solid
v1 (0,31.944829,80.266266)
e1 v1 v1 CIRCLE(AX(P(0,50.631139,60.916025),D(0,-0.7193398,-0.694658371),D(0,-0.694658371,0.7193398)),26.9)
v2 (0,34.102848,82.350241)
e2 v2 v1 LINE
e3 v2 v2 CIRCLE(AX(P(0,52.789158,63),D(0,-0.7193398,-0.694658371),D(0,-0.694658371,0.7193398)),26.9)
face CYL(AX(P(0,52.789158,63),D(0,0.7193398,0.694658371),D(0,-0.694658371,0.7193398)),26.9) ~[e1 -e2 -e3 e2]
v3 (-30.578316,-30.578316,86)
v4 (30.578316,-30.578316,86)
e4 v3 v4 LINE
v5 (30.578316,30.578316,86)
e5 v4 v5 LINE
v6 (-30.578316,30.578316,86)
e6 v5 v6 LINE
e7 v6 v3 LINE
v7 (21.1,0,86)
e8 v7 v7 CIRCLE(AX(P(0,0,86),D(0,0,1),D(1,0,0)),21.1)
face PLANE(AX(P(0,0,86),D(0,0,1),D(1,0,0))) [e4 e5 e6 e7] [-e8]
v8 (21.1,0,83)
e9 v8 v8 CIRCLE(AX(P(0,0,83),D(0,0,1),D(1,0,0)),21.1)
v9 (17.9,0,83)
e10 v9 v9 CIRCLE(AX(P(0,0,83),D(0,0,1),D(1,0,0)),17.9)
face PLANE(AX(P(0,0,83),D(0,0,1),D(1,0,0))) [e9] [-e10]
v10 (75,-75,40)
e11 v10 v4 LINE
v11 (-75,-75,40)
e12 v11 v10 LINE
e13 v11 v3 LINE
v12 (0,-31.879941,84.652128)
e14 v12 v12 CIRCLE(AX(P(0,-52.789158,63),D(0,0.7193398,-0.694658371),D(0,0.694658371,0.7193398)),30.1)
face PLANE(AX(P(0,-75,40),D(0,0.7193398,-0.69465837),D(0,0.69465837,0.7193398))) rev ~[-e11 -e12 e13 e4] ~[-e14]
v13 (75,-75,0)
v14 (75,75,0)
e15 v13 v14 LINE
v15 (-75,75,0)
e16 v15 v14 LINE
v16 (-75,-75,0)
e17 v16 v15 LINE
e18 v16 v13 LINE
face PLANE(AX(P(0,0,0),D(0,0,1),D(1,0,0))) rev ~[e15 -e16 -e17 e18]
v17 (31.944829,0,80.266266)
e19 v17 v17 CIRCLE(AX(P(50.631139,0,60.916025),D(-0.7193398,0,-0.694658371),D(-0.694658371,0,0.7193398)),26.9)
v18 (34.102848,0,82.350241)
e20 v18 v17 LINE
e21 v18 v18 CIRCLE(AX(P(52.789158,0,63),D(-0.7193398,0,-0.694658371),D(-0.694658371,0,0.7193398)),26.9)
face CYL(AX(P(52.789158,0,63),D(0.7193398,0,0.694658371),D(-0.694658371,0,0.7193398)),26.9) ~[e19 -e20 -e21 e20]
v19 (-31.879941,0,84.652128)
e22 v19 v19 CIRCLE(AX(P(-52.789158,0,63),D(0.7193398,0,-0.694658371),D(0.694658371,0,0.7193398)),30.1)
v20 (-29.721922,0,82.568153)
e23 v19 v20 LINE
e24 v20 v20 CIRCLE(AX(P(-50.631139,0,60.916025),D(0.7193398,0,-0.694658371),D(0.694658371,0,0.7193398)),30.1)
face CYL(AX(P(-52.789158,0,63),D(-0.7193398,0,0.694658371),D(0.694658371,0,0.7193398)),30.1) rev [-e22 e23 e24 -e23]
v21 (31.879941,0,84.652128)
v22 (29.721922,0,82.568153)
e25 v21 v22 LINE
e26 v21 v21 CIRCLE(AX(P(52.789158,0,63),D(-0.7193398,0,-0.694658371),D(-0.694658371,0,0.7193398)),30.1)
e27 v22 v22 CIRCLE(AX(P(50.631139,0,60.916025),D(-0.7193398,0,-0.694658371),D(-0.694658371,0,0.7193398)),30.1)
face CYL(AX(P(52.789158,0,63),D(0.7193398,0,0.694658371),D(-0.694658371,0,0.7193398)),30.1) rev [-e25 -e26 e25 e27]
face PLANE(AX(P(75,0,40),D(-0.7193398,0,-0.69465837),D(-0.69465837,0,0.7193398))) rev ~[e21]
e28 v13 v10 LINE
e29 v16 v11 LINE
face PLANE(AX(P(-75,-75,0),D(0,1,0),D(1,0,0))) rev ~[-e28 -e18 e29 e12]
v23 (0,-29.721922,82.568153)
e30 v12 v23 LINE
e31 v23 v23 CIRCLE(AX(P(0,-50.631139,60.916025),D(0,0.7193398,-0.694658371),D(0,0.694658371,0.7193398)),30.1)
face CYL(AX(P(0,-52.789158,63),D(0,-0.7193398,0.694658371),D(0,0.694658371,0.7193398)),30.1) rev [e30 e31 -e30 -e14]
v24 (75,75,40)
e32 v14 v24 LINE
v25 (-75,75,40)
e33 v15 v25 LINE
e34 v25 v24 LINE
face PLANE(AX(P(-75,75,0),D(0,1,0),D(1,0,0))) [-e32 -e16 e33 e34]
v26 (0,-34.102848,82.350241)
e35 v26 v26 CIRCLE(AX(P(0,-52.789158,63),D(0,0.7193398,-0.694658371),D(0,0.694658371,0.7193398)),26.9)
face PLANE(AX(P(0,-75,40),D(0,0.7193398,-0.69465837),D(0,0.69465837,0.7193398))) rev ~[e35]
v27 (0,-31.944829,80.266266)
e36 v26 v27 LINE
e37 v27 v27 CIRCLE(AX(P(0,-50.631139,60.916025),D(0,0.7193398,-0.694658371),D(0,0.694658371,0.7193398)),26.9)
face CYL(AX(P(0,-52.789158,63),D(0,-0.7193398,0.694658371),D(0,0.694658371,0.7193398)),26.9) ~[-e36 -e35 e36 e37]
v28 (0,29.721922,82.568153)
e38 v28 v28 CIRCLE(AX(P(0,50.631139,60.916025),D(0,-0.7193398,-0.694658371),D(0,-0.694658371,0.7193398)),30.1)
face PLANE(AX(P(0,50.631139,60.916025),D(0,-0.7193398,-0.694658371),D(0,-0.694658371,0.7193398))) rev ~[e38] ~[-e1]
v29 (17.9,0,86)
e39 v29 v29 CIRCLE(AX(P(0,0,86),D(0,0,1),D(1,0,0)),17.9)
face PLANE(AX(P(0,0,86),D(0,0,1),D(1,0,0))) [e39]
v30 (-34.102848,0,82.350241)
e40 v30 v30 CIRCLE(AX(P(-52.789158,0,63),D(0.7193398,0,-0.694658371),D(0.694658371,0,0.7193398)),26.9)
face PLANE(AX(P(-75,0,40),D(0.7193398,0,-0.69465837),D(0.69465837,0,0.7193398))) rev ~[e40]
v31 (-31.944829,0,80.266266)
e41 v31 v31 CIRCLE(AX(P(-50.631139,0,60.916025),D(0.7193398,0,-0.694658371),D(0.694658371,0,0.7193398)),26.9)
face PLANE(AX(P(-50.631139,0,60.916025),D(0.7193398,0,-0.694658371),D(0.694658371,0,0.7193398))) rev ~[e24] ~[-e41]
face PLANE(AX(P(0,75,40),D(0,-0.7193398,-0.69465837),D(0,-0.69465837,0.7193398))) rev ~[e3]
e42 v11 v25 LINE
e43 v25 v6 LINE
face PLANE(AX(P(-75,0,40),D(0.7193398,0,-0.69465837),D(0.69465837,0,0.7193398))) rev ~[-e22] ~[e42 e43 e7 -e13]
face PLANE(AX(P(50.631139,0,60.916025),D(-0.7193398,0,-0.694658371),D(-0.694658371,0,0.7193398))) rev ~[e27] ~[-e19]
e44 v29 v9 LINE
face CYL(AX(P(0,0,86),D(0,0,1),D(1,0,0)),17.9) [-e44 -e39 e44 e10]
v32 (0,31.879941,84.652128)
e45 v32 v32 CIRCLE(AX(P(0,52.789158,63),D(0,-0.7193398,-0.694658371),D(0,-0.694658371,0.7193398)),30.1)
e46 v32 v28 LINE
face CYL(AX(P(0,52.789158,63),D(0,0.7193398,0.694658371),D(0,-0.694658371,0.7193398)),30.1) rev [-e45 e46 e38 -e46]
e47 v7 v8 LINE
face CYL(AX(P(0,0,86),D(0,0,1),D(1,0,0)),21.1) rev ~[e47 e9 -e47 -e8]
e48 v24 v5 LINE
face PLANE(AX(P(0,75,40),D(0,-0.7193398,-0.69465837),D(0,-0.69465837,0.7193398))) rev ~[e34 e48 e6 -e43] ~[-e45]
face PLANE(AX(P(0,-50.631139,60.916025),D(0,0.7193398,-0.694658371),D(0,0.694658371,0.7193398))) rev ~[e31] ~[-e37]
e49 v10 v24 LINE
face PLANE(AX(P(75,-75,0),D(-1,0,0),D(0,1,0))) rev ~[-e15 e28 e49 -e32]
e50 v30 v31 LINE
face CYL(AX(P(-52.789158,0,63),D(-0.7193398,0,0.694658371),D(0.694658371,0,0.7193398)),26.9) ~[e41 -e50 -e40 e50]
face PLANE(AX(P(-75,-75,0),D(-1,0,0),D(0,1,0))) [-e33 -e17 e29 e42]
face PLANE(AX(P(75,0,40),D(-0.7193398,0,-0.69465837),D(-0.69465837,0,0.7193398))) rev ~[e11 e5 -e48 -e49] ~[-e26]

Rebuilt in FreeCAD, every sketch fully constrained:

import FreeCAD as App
import Part
import Sketcher


def add_polygon(sketch, points):
    """Adds a closed chain of lines whose ends are joined by coincident constraints."""
    first, n = sketch.GeometryCount, len(points)
    for a, b in zip(points, points[1:] + points[:1]):
        sketch.addGeometry(Part.LineSegment(App.Vector(*a, 0), App.Vector(*b, 0)), False)
    for i in range(n):
        sketch.addConstraint(Sketcher.Constraint("Coincident", first + i, 2, first + (i + 1) % n, 1))

doc = App.newDocument("Part")
body = doc.addObject("PartDesign::Body", "Body")

# Sketch on XY plane
sketch1 = body.newObject("Sketcher::SketchObject", "Sketch")
sketch1.AttachmentSupport = (doc.getObject("XY_Plane"), [""])
sketch1.MapMode = "FlatFace"
add_polygon(sketch1, [(-75, 75), (-75, -75), (75, -75), (75, 75)])  # lines 0-3
sketch1.addConstraint([
    Sketcher.Constraint("Vertical", 0),
    Sketcher.Constraint("Horizontal", 1),
    Sketcher.Constraint("Vertical", 2),
    Sketcher.Constraint("Horizontal", 3),
    Sketcher.Constraint("Symmetric", 0, 2, 2, 2, -1, 1),
    Sketcher.Constraint("Equal", 3, 0),
    Sketcher.Constraint("DistanceX", 1, 1, 1, 2, 150.0),
])
pad1 = body.newObject("PartDesign::Pad", "Pad")
pad1.Profile = sketch1
pad1.Length = 40

# Sketch on XY plane
sketch2 = body.newObject("Sketcher::SketchObject", "Sketch001")
sketch2.AttachmentSupport = (doc.getObject("XY_Plane"), [""])
sketch2.MapMode = "FlatFace"
sketch2.AttachmentOffset = App.Placement(App.Vector(0, 0, 40), App.Rotation())
add_polygon(sketch2, [(-75, 75), (-75, -75), (75, -75), (75, 75)])  # lines 0-3
sketch2.addConstraint([
    Sketcher.Constraint("Vertical", 0),
    Sketcher.Constraint("Horizontal", 1),
    Sketcher.Constraint("Vertical", 2),
    Sketcher.Constraint("Horizontal", 3),
    Sketcher.Constraint("Symmetric", 0, 2, 2, 2, -1, 1),
    Sketcher.Constraint("Equal", 3, 0),
    Sketcher.Constraint("DistanceX", 1, 1, 1, 2, 150.0),
])
pad2 = body.newObject("PartDesign::Pad", "Pad001")
pad2.Profile = sketch2
pad2.Length = 46
pad2.TaperAngle = -44

# Sketch on an angled plane
sketch3 = body.newObject("Sketcher::SketchObject", "Sketch002")
sketch3.Placement = App.Placement(App.Vector(0, -55.904201, 59.774279), App.Rotation(App.Vector(0, 0.69465837, 0.7193398), App.Vector(0.999999999, 0, 0), App.Vector(0, 0.7193398, -0.69465837), "ZXY"))
sketch3.addGeometry([
    Part.Circle(App.Vector(4.484281, 0, 0), App.Vector(0, 0, 1), 30.1),
    Part.Circle(App.Vector(4.484281, 0, 0), App.Vector(0, 0, 1), 26.9),
], False)
sketch3.addConstraint([
    Sketcher.Constraint("Coincident", 1, 3, 0, 3),
    Sketcher.Constraint("PointOnObject", 0, 3, -1),
    Sketcher.Constraint("Diameter", 0, 60.2),
    Sketcher.Constraint("Diameter", 1, 53.8),
    Sketcher.Constraint("DistanceX", -1, 1, 0, 3, 4.484281),
])
pocket1 = body.newObject("PartDesign::Pocket", "Pocket")
pocket1.Profile = sketch3
pocket1.Length = 3
pocket1.Reversed = True
doc.recompute()

polarpattern = body.newObject("PartDesign::PolarPattern", "PolarPattern")
polarpattern.Originals = [pocket1]
polarpattern.Axis = (doc.getObject("Z_Axis"), [""])
polarpattern.Angle = 360
polarpattern.Occurrences = 4
body.Tip = polarpattern

# Sketch on XY plane
sketch4 = body.newObject("Sketcher::SketchObject", "Sketch003")
sketch4.AttachmentSupport = (doc.getObject("XY_Plane"), [""])
sketch4.MapMode = "FlatFace"
sketch4.AttachmentOffset = App.Placement(App.Vector(0, 0, 86), App.Rotation())
sketch4.addGeometry([
    Part.Circle(App.Vector(0, 0, 0), App.Vector(0, 0, 1), 21.1),
    Part.Circle(App.Vector(0, 0, 0), App.Vector(0, 0, 1), 17.9),
], False)
sketch4.addConstraint([
    Sketcher.Constraint("Coincident", 0, 3, -1, 1),
    Sketcher.Constraint("Coincident", 1, 3, -1, 1),
    Sketcher.Constraint("Diameter", 0, 42.2),
    Sketcher.Constraint("Diameter", 1, 35.8),
])
pocket2 = body.newObject("PartDesign::Pocket", "Pocket001")
pocket2.Profile = sketch4
pocket2.Length = 3

doc.recompute()
